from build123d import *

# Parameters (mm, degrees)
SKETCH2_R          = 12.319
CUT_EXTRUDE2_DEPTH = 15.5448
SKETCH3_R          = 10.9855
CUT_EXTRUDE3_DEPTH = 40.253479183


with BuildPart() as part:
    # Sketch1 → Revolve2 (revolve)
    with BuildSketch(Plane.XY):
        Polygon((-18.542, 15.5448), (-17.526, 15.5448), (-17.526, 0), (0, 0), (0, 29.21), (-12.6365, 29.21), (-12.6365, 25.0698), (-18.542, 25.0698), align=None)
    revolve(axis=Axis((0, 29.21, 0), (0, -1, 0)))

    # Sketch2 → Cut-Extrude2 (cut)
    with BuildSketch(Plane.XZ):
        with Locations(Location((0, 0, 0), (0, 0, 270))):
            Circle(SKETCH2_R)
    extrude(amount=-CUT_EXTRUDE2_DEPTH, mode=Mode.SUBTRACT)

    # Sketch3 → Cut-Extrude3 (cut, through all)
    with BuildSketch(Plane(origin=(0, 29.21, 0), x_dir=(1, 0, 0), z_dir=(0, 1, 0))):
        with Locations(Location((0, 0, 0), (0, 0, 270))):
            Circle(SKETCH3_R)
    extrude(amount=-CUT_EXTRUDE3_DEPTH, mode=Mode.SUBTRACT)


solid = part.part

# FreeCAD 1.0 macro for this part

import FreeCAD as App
import Part
import Sketcher
Q = App.Units.Quantity


def add_polygon(sketch, points):
    """Adds a closed chain of lines whose ends are joined by coincident constraints."""
    first, n = sketch.GeometryCount, len(points)
    for a, b in zip(points, points[1:] + points[:1]):
        sketch.addGeometry(Part.LineSegment(App.Vector(*a, 0), App.Vector(*b, 0)), False)
    for i in range(n):
        sketch.addConstraint(Sketcher.Constraint("Coincident", first + i, 2, first + (i + 1) % n, 1))

doc = App.newDocument("Part")
params = doc.addObject("Spreadsheet::Sheet", "Params")
for row, (alias, value) in enumerate([
    ("sketch1_width", "0.04 in"),
    ("sketch1_width2", "0.69 in"),
    ("sketch1_height", "1.15 in"),
    ("sketch1_height2", "0.612 in"),
    ("sketch1_height3", "0.163 in"),
    ("revolution_angle", "360 deg"),
    ("sketch2_diameter", "0.97 in"),
    ("pocket1_length", "0.612 in"),
    ("sketch3_diameter", "0.865 in"),
], start=1):
    params.set(f"A{row}", alias)
    params.set(f"B{row}", "=" + value)
    params.setAlias(f"B{row}", alias)

body = doc.addObject("PartDesign::Body", "Body")

# Sketch on XY plane
sketch1 = body.newObject("Sketcher::SketchObject", "Sketch")
sketch1.AttachmentSupport = (doc.getObject("XY_Plane"), [""])
sketch1.MapMode = "FlatFace"
add_polygon(sketch1, [(-18.5, 15.5), (-17.5, 15.5), (-17.5, 0), (0, 0), (0, 29.2), (-12.6, 29.2), (-12.6, 25.1), (-18.5, 25.1)])  # lines 0-7
sketch1.addConstraint(Sketcher.Constraint("Horizontal", 0))
sketch1.addConstraint(Sketcher.Constraint("Vertical", 1))
sketch1.addConstraint(Sketcher.Constraint("Horizontal", 2))
sketch1.addConstraint(Sketcher.Constraint("Vertical", 3))
sketch1.addConstraint(Sketcher.Constraint("Horizontal", 4))
sketch1.addConstraint(Sketcher.Constraint("Vertical", 5))
sketch1.addConstraint(Sketcher.Constraint("Horizontal", 6))
sketch1.addConstraint(Sketcher.Constraint("Vertical", 7))
sketch1.addConstraint(Sketcher.Constraint("Coincident", 2, 2, -1, 1))
sketch1.addConstraint(Sketcher.Constraint("DistanceX", 0, 1, 0, 2, Q("0.04 in")))
sketch1.addConstraint(Sketcher.Constraint("DistanceX", 2, 1, 2, 2, Q("0.69 in")))
sketch1.addConstraint(Sketcher.Constraint("DistanceY", 3, 1, 3, 2, Q("1.15 in")))
sketch1.addConstraint(Sketcher.Constraint("DistanceY", 1, 2, 1, 1, Q("0.612 in")))
sketch1.addConstraint(Sketcher.Constraint("DistanceY", 5, 2, 5, 1, Q("0.163 in")))
sketch1.addConstraint(Sketcher.Constraint("DistanceX", 4, 2, 4, 1, Q("0.4975 in")))
sketch1.setExpression("Constraints[17]", "Params.sketch1_width")
sketch1.setExpression("Constraints[18]", "Params.sketch1_width2")
sketch1.setExpression("Constraints[19]", "Params.sketch1_height")
sketch1.setExpression("Constraints[20]", "Params.sketch1_height2")
sketch1.setExpression("Constraints[21]", "Params.sketch1_height3")
revolution = body.newObject("PartDesign::Revolution", "Revolution")
revolution.Profile = sketch1
revolution.ReferenceAxis = (sketch1, ["V_Axis"])
revolution.setExpression("Angle", "Params.revolution_angle")

# Sketch on XZ plane
sketch2 = body.newObject("Sketcher::SketchObject", "Sketch001")
sketch2.AttachmentSupport = (doc.getObject("XZ_Plane"), [""])
sketch2.MapMode = "FlatFace"
sketch2.addGeometry(Part.Circle(App.Vector(0, 0, 0), App.Vector(0, 0, 1), 12), False)
sketch2.addConstraint(Sketcher.Constraint("Coincident", 0, 3, -1, 1))
sketch2.addConstraint(Sketcher.Constraint("Diameter", 0, Q("0.97 in")))
sketch2.setExpression("Constraints[1]", "Params.sketch2_diameter")
pocket1 = body.newObject("PartDesign::Pocket", "Pocket")
pocket1.Profile = sketch2
pocket1.setExpression("Length", "Params.pocket1_length")

# Sketch on XZ plane
sketch3 = body.newObject("Sketcher::SketchObject", "Sketch002")
sketch3.AttachmentSupport = (doc.getObject("XZ_Plane"), [""])
sketch3.MapMode = "FlatFace"
sketch3.AttachmentOffset = App.Placement(App.Vector(0, 0, -1.15 * 25.4), App.Rotation())
sketch3.addGeometry(Part.Circle(App.Vector(0, 0, 0), App.Vector(0, 0, 1), 11), False)
sketch3.addConstraint(Sketcher.Constraint("Coincident", 0, 3, -1, 1))
sketch3.addConstraint(Sketcher.Constraint("Diameter", 0, Q("0.865 in")))
sketch3.setExpression("Constraints[1]", "Params.sketch3_diameter")
pocket2 = body.newObject("PartDesign::Pocket", "Pocket001")
pocket2.Profile = sketch3
pocket2.Type = "ThroughAll"
pocket2.Reversed = True

doc.recompute()
